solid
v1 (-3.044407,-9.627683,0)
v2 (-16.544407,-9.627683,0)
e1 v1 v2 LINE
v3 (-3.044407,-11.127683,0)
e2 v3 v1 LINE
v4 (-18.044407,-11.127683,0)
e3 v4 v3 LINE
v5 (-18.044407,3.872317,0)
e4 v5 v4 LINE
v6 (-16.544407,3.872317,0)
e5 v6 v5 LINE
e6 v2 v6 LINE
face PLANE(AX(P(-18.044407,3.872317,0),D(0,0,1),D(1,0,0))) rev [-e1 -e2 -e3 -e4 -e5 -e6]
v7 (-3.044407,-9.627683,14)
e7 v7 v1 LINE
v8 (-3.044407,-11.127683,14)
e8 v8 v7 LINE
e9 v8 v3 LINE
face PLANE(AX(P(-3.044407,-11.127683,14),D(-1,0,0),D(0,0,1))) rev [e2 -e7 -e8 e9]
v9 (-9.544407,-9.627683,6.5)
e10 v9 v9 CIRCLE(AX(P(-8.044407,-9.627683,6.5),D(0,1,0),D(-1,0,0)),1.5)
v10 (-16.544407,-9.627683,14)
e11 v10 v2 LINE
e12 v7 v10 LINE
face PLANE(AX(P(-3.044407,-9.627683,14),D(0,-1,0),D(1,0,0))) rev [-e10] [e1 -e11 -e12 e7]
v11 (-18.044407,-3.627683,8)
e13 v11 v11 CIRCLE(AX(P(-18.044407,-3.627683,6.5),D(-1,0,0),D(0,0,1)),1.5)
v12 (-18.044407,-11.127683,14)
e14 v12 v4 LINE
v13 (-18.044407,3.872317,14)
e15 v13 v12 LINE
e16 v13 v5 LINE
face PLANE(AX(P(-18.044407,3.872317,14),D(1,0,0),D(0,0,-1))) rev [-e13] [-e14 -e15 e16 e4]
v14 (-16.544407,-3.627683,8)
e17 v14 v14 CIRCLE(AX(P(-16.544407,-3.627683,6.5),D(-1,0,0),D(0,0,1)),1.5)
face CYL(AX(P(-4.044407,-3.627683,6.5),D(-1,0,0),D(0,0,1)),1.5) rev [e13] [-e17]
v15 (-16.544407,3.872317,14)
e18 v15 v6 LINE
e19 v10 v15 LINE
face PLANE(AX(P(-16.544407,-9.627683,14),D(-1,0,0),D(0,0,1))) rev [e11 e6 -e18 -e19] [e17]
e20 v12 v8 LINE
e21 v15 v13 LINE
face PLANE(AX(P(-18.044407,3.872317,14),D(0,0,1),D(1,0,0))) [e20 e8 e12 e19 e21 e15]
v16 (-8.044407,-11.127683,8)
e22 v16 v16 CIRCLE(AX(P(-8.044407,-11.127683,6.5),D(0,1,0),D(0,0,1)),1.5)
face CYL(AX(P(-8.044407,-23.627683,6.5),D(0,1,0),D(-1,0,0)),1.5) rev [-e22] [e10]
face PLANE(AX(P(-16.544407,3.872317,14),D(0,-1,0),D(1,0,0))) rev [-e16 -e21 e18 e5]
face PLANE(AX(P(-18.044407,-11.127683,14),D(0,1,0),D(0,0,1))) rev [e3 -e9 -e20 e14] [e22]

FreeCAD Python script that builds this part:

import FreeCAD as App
import Part
import Sketcher


def add_polygon(sketch, points):
    """Adds a closed chain of lines whose ends are joined by coincident constraints."""
    first, n = sketch.GeometryCount, len(points)
    for a, b in zip(points, points[1:] + points[:1]):
        sketch.addGeometry(Part.LineSegment(App.Vector(*a, 0), App.Vector(*b, 0)), False)
    for i in range(n):
        sketch.addConstraint(Sketcher.Constraint("Coincident", first + i, 2, first + (i + 1) % n, 1))

doc = App.newDocument("Part")
body = doc.addObject("PartDesign::Body", "Body")

sketch1 = body.newObject("Sketcher::SketchObject", "Sketch")
sketch1.AttachmentSupport = (doc.getObject("XY_Plane"), [""])
sketch1.MapMode = "FlatFace"
add_polygon(sketch1, [(-18, 3.9), (-18, -11.1), (-3, -11.1), (-3, -9.6), (-16.5, -9.6), (-16.5, 3.9)])
sketch1.addConstraint([
    Sketcher.Constraint("Vertical", 0),
    Sketcher.Constraint("Horizontal", 1),
    Sketcher.Constraint("Vertical", 2),
    Sketcher.Constraint("Horizontal", 3),
    Sketcher.Constraint("Vertical", 4),
    Sketcher.Constraint("Horizontal", 5),
    Sketcher.Constraint("Equal", 1, 0),
    Sketcher.Constraint("Equal", 5, 2),
    Sketcher.Constraint("DistanceX", 1, 1, 1, 2, 15.0),
    Sketcher.Constraint("DistanceX", 3, 2, 3, 1, 13.5),
    Sketcher.Constraint("DistanceX", 0, 2, -1, 1, 18.044407),
    Sketcher.Constraint("DistanceY", 0, 2, -1, 1, 11.127683),
])
pad1 = body.newObject("PartDesign::Pad", "Pad")
pad1.Profile = sketch1
pad1.Length = 14

sketch2 = body.newObject("Sketcher::SketchObject", "Sketch001")
sketch2.AttachmentSupport = (doc.getObject("XZ_Plane"), [""])
sketch2.MapMode = "FlatFace"
sketch2.AttachmentOffset = App.Placement(App.Vector(0, 0, 9.627683), App.Rotation())
sketch2.addGeometry(Part.Circle(App.Vector(-8, 6.5, 0), App.Vector(0, 0, 1), 1.5), False)
sketch2.addConstraint([
    Sketcher.Constraint("Diameter", 0, 3.0),
    Sketcher.Constraint("DistanceY", -1, 1, 0, 3, 6.5),
    Sketcher.Constraint("DistanceX", 0, 3, -1, 1, 8.044407),
])
pocket1 = body.newObject("PartDesign::Pocket", "Pocket")
pocket1.Profile = sketch2
pocket1.Length = 14
pocket1.Reversed = True

sketch3 = body.newObject("Sketcher::SketchObject", "Sketch002")
sketch3.AttachmentSupport = (doc.getObject("YZ_Plane"), [""])
sketch3.MapMode = "FlatFace"
sketch3.AttachmentOffset = App.Placement(App.Vector(0, 0, -18.044407), App.Rotation())
sketch3.addGeometry(Part.Circle(App.Vector(-3.6, 6.5, 0), App.Vector(0, 0, 1), 1.5), False)
sketch3.addConstraint([
    Sketcher.Constraint("Diameter", 0, 3.0),
    Sketcher.Constraint("DistanceY", -1, 1, 0, 3, 6.5),
    Sketcher.Constraint("DistanceX", 0, 3, -1, 1, 3.627683),
])
pocket2 = body.newObject("PartDesign::Pocket", "Pocket001")
pocket2.Profile = sketch3
pocket2.Length = 14
pocket2.Reversed = True

doc.recompute()
